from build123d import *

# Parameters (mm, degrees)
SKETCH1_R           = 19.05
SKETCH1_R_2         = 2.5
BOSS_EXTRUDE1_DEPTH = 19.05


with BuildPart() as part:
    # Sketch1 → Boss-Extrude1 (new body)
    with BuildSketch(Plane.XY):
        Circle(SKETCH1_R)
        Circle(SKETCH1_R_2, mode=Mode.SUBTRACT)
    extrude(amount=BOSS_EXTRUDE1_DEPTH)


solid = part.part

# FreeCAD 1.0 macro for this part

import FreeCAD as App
import Part
import Sketcher
from FreeCAD import Vector
Q = App.Units.Quantity

doc = App.newDocument("Part")
body = doc.addObject("PartDesign::Body", "Body")

# Sketch on XY plane
sketch1 = body.newObject("Sketcher::SketchObject", "Sketch")
sketch1.AttachmentSupport = (doc.getObject("XY_Plane"), [""])
sketch1.MapMode = "FlatFace"
sketch1.addGeometry([
    Part.Circle(Vector(0, 0, 0), Vector(0, 0, 1), 19.05),
    Part.Circle(Vector(0, 0, 0), Vector(0, 0, 1), 2.5),
], False)
sketch1.addConstraint([
    Sketcher.Constraint("Coincident", 0, 3, -1, 1),
    Sketcher.Constraint("Coincident", 1, 3, -1, 1),
    Sketcher.Constraint("Diameter", 0, Q("1.5 in")),
    Sketcher.Constraint("Diameter", 1, Q("5 mm")),
])
pad1 = body.newObject("PartDesign::Pad", "Pad")
pad1.Profile = sketch1
pad1.Length = Q("0.75 in")

doc.recompute()
